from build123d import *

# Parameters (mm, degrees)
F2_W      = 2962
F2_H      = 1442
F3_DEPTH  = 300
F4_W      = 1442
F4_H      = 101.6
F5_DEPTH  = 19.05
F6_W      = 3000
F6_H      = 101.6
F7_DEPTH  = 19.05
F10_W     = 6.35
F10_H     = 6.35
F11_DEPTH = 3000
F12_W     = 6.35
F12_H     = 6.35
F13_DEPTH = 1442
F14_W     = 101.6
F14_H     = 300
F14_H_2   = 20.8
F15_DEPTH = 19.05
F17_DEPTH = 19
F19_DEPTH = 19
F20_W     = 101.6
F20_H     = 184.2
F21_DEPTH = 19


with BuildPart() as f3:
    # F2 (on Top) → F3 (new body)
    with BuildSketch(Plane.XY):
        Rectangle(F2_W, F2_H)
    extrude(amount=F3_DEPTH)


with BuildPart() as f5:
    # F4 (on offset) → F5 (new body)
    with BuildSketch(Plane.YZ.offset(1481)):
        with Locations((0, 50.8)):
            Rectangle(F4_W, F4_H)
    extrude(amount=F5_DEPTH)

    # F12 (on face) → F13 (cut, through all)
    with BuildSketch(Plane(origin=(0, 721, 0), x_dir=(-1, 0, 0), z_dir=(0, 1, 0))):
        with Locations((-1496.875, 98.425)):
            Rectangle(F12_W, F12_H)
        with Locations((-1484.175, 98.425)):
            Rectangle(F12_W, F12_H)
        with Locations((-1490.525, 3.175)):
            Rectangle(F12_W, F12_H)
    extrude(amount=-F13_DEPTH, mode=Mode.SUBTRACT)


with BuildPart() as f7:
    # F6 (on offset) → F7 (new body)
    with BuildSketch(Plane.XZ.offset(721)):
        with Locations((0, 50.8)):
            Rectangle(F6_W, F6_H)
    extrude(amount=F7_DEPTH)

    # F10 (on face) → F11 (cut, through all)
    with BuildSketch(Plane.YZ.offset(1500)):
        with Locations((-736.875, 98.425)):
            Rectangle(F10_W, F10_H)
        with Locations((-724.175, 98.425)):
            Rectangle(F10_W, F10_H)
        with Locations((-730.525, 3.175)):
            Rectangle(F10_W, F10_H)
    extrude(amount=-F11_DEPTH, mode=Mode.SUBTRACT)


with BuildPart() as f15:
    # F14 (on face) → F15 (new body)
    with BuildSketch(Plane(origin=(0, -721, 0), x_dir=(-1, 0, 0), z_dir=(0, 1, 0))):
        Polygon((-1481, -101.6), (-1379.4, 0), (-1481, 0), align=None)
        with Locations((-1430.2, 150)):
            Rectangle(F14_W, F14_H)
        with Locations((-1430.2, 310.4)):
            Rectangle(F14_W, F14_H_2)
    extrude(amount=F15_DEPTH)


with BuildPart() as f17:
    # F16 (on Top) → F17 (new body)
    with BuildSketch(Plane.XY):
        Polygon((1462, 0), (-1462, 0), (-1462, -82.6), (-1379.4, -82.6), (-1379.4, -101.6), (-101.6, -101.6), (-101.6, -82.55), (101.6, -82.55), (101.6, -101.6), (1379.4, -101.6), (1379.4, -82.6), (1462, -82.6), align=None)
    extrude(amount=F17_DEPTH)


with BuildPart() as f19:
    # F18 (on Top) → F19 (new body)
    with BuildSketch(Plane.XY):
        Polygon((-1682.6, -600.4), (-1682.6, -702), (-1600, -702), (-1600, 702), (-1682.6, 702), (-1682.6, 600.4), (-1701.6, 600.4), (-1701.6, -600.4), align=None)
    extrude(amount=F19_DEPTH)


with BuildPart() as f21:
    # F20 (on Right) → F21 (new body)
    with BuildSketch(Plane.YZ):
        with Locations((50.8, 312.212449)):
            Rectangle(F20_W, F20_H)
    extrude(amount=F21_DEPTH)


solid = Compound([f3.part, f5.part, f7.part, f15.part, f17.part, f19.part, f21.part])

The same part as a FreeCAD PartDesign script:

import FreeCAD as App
import Part
import Sketcher

V = App.Vector
Q = App.Units.Quantity


def add_polygon(sketch, points):
    """Adds a closed chain of lines whose ends are joined by coincident constraints."""
    first, n = sketch.GeometryCount, len(points)
    for a, b in zip(points, points[1:] + points[:1]):
        sketch.addGeometry(Part.LineSegment(App.Vector(*a, 0), App.Vector(*b, 0)), False)
    for i in range(n):
        sketch.addConstraint(Sketcher.Constraint("Coincident", first + i, 2, first + (i + 1) % n, 1))

doc = App.newDocument("Part")
body = doc.addObject("PartDesign::Body", "Body")

sketch1 = body.newObject("Sketcher::SketchObject", "Sketch")
sketch1.AttachmentSupport = (doc.getObject("XY_Plane"), [""])
sketch1.MapMode = "FlatFace"
add_polygon(sketch1, [(-1481, 721), (-1481, -721), (1481, -721), (1481, 721)])
sketch1.addConstraint([
    Sketcher.Constraint("Vertical", 0),
    Sketcher.Constraint("Horizontal", 1),
    Sketcher.Constraint("Vertical", 2),
    Sketcher.Constraint("Horizontal", 3),
    Sketcher.Constraint("Symmetric", 0, 2, 2, 2, -1, 1),
    Sketcher.Constraint("DistanceX", 1, 1, 1, 2, Q("2962 mm")),
    Sketcher.Constraint("DistanceY", 0, 2, 0, 1, Q("1442 mm")),
])
pad1 = body.newObject("PartDesign::Pad", "Pad")
pad1.Profile = sketch1
pad1.Length = 300
body2 = doc.addObject("PartDesign::Body", "Body001")

sketch2 = body2.newObject("Sketcher::SketchObject", "Sketch001")
sketch2.AttachmentSupport = (doc.getObject("YZ_Plane001"), [""])
sketch2.MapMode = "FlatFace"
sketch2.AttachmentOffset = App.Placement(V(0, 0, 1481), App.Rotation())
add_polygon(sketch2, [(-721, 102), (-721, 0), (721, 0), (721, 102)])
sketch2.addConstraint([
    Sketcher.Constraint("Vertical", 0),
    Sketcher.Constraint("Horizontal", 1),
    Sketcher.Constraint("Vertical", 2),
    Sketcher.Constraint("Horizontal", 3),
    Sketcher.Constraint("Symmetric", 0, 2, 1, 2, -1, 1),
    Sketcher.Constraint("DistanceX", 1, 1, 1, 2, Q("1442 mm")),
    Sketcher.Constraint("DistanceY", 0, 2, 0, 1, Q("101.6 mm")),
])
pad2 = body2.newObject("PartDesign::Pad", "Pad001")
pad2.Profile = sketch2
pad2.Length = 19.05

sketch3 = body2.newObject("Sketcher::SketchObject", "Sketch002")
sketch3.AttachmentSupport = (doc.getObject("XZ_Plane001"), [""])
sketch3.MapMode = "FlatFace"
sketch3.AttachmentOffset = App.Placement(V(0, 0, -721), App.Rotation())
add_polygon(sketch3, [(1500, 102), (1500, 95), (1494, 95), (1494, 102)])
add_polygon(sketch3, [(1487, 102), (1487, 95), (1481, 95), (1481, 102)])
add_polygon(sketch3, [(1494, 6), (1494, 0), (1487, 0), (1487, 6)])
sketch3.addConstraint([
    Sketcher.Constraint("Vertical", 0),
    Sketcher.Constraint("Horizontal", 1),
    Sketcher.Constraint("Vertical", 2),
    Sketcher.Constraint("Horizontal", 3),
    Sketcher.Constraint("Vertical", 4),
    Sketcher.Constraint("Horizontal", 5),
    Sketcher.Constraint("Vertical", 6),
    Sketcher.Constraint("Horizontal", 7),
    Sketcher.Constraint("Vertical", 8),
    Sketcher.Constraint("Horizontal", 9),
    Sketcher.Constraint("Vertical", 10),
    Sketcher.Constraint("Horizontal", 11),
    Sketcher.Constraint("PointOnObject", 8, 2, -1),
    Sketcher.Constraint("Horizontal", 1, 2, 4, 2),
    Sketcher.Constraint("Horizontal", 3, 2, 6, 2),
    Sketcher.Constraint("Vertical", 2, 2, 8, 2),
    Sketcher.Constraint("Vertical", 7, 2, 9, 2),
    Sketcher.Constraint("Equal", 3, 5),
    Sketcher.Constraint("Equal", 7, 9),
    Sketcher.Constraint("Equal", 11, 0),
    Sketcher.Constraint("Equal", 6, 8),
    Sketcher.Constraint("DistanceX", -1, 1, 5, 2, Q("1481 mm")),
    Sketcher.Constraint("DistanceX", 1, 2, 1, 1, Q("6.35 mm")),
    Sketcher.Constraint("DistanceY", -1, 1, 2, 2, Q("101.6 mm")),
])
pocket1 = body2.newObject("PartDesign::Pocket", "Pocket")
pocket1.Profile = sketch3
pocket1.Type = "ThroughAll"
pocket1.Reversed = True
body3 = doc.addObject("PartDesign::Body", "Body002")

sketch4 = body3.newObject("Sketcher::SketchObject", "Sketch003")
sketch4.AttachmentSupport = (doc.getObject("XZ_Plane002"), [""])
sketch4.MapMode = "FlatFace"
sketch4.AttachmentOffset = App.Placement(V(0, 0, 721), App.Rotation())
add_polygon(sketch4, [(-1500, 102), (-1500, 0), (1500, 0), (1500, 102)])
sketch4.addConstraint([
    Sketcher.Constraint("Vertical", 0),
    Sketcher.Constraint("Horizontal", 1),
    Sketcher.Constraint("Vertical", 2),
    Sketcher.Constraint("Horizontal", 3),
    Sketcher.Constraint("Symmetric", 0, 2, 1, 2, -1, 1),
    Sketcher.Constraint("DistanceX", 1, 1, 1, 2, Q("3000 mm")),
    Sketcher.Constraint("DistanceY", 0, 2, 0, 1, Q("101.6 mm")),
])
pad3 = body3.newObject("PartDesign::Pad", "Pad002")
pad3.Profile = sketch4
pad3.Length = 19.05

sketch5 = body3.newObject("Sketcher::SketchObject", "Sketch004")
sketch5.AttachmentSupport = (doc.getObject("YZ_Plane002"), [""])
sketch5.MapMode = "FlatFace"
sketch5.AttachmentOffset = App.Placement(V(0, 0, 1500), App.Rotation())
add_polygon(sketch5, [(-740, 102), (-740, 95), (-734, 95), (-734, 102)])
add_polygon(sketch5, [(-727, 102), (-727, 95), (-721, 95), (-721, 102)])
add_polygon(sketch5, [(-734, 6), (-734, 0), (-727, 0), (-727, 6)])
sketch5.addConstraint([
    Sketcher.Constraint("Vertical", 0),
    Sketcher.Constraint("Horizontal", 1),
    Sketcher.Constraint("Vertical", 2),
    Sketcher.Constraint("Horizontal", 3),
    Sketcher.Constraint("Vertical", 4),
    Sketcher.Constraint("Horizontal", 5),
    Sketcher.Constraint("Vertical", 6),
    Sketcher.Constraint("Horizontal", 7),
    Sketcher.Constraint("Vertical", 8),
    Sketcher.Constraint("Horizontal", 9),
    Sketcher.Constraint("Vertical", 10),
    Sketcher.Constraint("Horizontal", 11),
    Sketcher.Constraint("PointOnObject", 8, 2, -1),
    Sketcher.Constraint("Horizontal", 1, 2, 4, 2),
    Sketcher.Constraint("Horizontal", 3, 2, 6, 2),
    Sketcher.Constraint("Vertical", 2, 2, 8, 2),
    Sketcher.Constraint("Vertical", 7, 2, 9, 2),
    Sketcher.Constraint("Equal", 3, 5),
    Sketcher.Constraint("Equal", 7, 9),
    Sketcher.Constraint("Equal", 11, 0),
    Sketcher.Constraint("Equal", 6, 8),
    Sketcher.Constraint("DistanceX", 5, 2, -1, 1, Q("721 mm")),
    Sketcher.Constraint("DistanceX", 1, 1, 1, 2, Q("6.35 mm")),
    Sketcher.Constraint("DistanceY", -1, 1, 2, 2, Q("101.6 mm")),
])
pocket2 = body3.newObject("PartDesign::Pocket", "Pocket001")
pocket2.Profile = sketch5
pocket2.Type = "ThroughAll"
body4 = doc.addObject("PartDesign::Body", "Body003")

sketch6 = body4.newObject("Sketcher::SketchObject", "Sketch005")
sketch6.AttachmentSupport = (doc.getObject("XZ_Plane003"), [""])
sketch6.MapMode = "FlatFace"
sketch6.AttachmentOffset = App.Placement(V(0, 0, 721), App.Rotation())
add_polygon(sketch6, [(1481, -102), (1379, 0), (1379, 321), (1481, 321)])
sketch6.addConstraint([
    Sketcher.Constraint("Vertical", 1),
    Sketcher.Constraint("Horizontal", 2),
    Sketcher.Constraint("Vertical", 3),
    Sketcher.Constraint("PointOnObject", 0, 2, -1),
    Sketcher.Constraint("Angle", 0, Q("135 deg")),
    Sketcher.Constraint("DistanceX", 2, 1, 2, 2, Q("101.6 mm")),
    Sketcher.Constraint("DistanceY", 1, 1, 1, 2, Q("320.8 mm")),
    Sketcher.Constraint("DistanceX", -1, 1, 2, 2, Q("1481 mm")),
])
pad4 = body4.newObject("PartDesign::Pad", "Pad003")
pad4.Profile = sketch6
pad4.Length = 19.05
pad4.Reversed = True
body5 = doc.addObject("PartDesign::Body", "Body004")

sketch7 = body5.newObject("Sketcher::SketchObject", "Sketch006")
sketch7.AttachmentSupport = (doc.getObject("XY_Plane004"), [""])
sketch7.MapMode = "FlatFace"
add_polygon(sketch7, [(1462, 0), (-1462, 0), (-1462, -83), (-1379, -83), (-1379, -102), (-102, -102), (-102, -83), (102, -83), (102, -102), (1379, -102), (1379, -83), (1462, -83)])
sketch7.addConstraint([
    Sketcher.Constraint("Horizontal", 0),
    Sketcher.Constraint("Vertical", 1),
    Sketcher.Constraint("Horizontal", 2),
    Sketcher.Constraint("Vertical", 3),
    Sketcher.Constraint("Horizontal", 4),
    Sketcher.Constraint("Vertical", 5),
    Sketcher.Constraint("Horizontal", 6),
    Sketcher.Constraint("Vertical", 7),
    Sketcher.Constraint("Horizontal", 8),
    Sketcher.Constraint("Vertical", 9),
    Sketcher.Constraint("Horizontal", 10),
    Sketcher.Constraint("Vertical", 11),
    Sketcher.Constraint("Symmetric", 0, 2, 11, 2, -1, 1),
    Sketcher.Constraint("Symmetric", 4, 2, 7, 2, -2),
    Sketcher.Constraint("Symmetric", 2, 2, 9, 2, -2),
    Sketcher.Constraint("Equal", 10, 1),
    Sketcher.Constraint("DistanceX", 0, 2, 0, 1, Q("2924 mm")),
    Sketcher.Constraint("DistanceY", 3, 2, 3, 1, Q("19 mm")),
    Sketcher.Constraint("DistanceX", 2, 1, 2, 2, Q("82.6 mm")),
    Sketcher.Constraint("DistanceX", 4, 1, 4, 2, Q("1277.8 mm")),
    Sketcher.Constraint("DistanceY", 5, 1, 5, 2, Q("19.05 mm")),
])
pad5 = body5.newObject("PartDesign::Pad", "Pad004")
pad5.Profile = sketch7
pad5.Length = 19
body6 = doc.addObject("PartDesign::Body", "Body005")

sketch8 = body6.newObject("Sketcher::SketchObject", "Sketch007")
sketch8.AttachmentSupport = (doc.getObject("XY_Plane005"), [""])
sketch8.MapMode = "FlatFace"
add_polygon(sketch8, [(-1683, -600), (-1683, -702), (-1600, -702), (-1600, 702), (-1683, 702), (-1683, 600), (-1702, 600), (-1702, -600)])
sketch8.addConstraint([
    Sketcher.Constraint("Vertical", 0),
    Sketcher.Constraint("Horizontal", 1),
    Sketcher.Constraint("Vertical", 2),
    Sketcher.Constraint("Horizontal", 3),
    Sketcher.Constraint("Vertical", 4),
    Sketcher.Constraint("Horizontal", 5),
    Sketcher.Constraint("Vertical", 6),
    Sketcher.Constraint("Horizontal", 7),
    Sketcher.Constraint("Symmetric", 0, 2, 3, 2, -1),
    Sketcher.Constraint("Equal", 0, 4),
    Sketcher.Constraint("DistanceX", 5, 2, 5, 1, Q("19 mm")),
    Sketcher.Constraint("DistanceY", 2, 1, 2, 2, Q("1404 mm")),
    Sketcher.Constraint("DistanceX", 1, 1, 1, 2, Q("82.6 mm")),
    Sketcher.Constraint("DistanceY", 0, 2, 0, 1, Q("101.6 mm")),
    Sketcher.Constraint("DistanceX", 1, 2, -1, 1, Q("1600 mm")),
])
pad6 = body6.newObject("PartDesign::Pad", "Pad005")
pad6.Profile = sketch8
pad6.Length = 19
body7 = doc.addObject("PartDesign::Body", "Body006")

sketch9 = body7.newObject("Sketcher::SketchObject", "Sketch008")
sketch9.AttachmentSupport = (doc.getObject("YZ_Plane006"), [""])
sketch9.MapMode = "FlatFace"
add_polygon(sketch9, [(0, 404), (0, 220), (102, 220), (102, 404)])
sketch9.addConstraint([
    Sketcher.Constraint("Vertical", 0),
    Sketcher.Constraint("Horizontal", 1),
    Sketcher.Constraint("Vertical", 2),
    Sketcher.Constraint("Horizontal", 3),
    Sketcher.Constraint("PointOnObject", 0, 2, -2),
    Sketcher.Constraint("DistanceX", 1, 1, 1, 2, Q("101.6 mm")),
    Sketcher.Constraint("DistanceY", 0, 2, 0, 1, Q("184.2 mm")),
    Sketcher.Constraint("DistanceY", -1, 1, 0, 2, Q("220.112449 mm")),
])
pad7 = body7.newObject("PartDesign::Pad", "Pad006")
pad7.Profile = sketch9
pad7.Length = 19

doc.recompute()
